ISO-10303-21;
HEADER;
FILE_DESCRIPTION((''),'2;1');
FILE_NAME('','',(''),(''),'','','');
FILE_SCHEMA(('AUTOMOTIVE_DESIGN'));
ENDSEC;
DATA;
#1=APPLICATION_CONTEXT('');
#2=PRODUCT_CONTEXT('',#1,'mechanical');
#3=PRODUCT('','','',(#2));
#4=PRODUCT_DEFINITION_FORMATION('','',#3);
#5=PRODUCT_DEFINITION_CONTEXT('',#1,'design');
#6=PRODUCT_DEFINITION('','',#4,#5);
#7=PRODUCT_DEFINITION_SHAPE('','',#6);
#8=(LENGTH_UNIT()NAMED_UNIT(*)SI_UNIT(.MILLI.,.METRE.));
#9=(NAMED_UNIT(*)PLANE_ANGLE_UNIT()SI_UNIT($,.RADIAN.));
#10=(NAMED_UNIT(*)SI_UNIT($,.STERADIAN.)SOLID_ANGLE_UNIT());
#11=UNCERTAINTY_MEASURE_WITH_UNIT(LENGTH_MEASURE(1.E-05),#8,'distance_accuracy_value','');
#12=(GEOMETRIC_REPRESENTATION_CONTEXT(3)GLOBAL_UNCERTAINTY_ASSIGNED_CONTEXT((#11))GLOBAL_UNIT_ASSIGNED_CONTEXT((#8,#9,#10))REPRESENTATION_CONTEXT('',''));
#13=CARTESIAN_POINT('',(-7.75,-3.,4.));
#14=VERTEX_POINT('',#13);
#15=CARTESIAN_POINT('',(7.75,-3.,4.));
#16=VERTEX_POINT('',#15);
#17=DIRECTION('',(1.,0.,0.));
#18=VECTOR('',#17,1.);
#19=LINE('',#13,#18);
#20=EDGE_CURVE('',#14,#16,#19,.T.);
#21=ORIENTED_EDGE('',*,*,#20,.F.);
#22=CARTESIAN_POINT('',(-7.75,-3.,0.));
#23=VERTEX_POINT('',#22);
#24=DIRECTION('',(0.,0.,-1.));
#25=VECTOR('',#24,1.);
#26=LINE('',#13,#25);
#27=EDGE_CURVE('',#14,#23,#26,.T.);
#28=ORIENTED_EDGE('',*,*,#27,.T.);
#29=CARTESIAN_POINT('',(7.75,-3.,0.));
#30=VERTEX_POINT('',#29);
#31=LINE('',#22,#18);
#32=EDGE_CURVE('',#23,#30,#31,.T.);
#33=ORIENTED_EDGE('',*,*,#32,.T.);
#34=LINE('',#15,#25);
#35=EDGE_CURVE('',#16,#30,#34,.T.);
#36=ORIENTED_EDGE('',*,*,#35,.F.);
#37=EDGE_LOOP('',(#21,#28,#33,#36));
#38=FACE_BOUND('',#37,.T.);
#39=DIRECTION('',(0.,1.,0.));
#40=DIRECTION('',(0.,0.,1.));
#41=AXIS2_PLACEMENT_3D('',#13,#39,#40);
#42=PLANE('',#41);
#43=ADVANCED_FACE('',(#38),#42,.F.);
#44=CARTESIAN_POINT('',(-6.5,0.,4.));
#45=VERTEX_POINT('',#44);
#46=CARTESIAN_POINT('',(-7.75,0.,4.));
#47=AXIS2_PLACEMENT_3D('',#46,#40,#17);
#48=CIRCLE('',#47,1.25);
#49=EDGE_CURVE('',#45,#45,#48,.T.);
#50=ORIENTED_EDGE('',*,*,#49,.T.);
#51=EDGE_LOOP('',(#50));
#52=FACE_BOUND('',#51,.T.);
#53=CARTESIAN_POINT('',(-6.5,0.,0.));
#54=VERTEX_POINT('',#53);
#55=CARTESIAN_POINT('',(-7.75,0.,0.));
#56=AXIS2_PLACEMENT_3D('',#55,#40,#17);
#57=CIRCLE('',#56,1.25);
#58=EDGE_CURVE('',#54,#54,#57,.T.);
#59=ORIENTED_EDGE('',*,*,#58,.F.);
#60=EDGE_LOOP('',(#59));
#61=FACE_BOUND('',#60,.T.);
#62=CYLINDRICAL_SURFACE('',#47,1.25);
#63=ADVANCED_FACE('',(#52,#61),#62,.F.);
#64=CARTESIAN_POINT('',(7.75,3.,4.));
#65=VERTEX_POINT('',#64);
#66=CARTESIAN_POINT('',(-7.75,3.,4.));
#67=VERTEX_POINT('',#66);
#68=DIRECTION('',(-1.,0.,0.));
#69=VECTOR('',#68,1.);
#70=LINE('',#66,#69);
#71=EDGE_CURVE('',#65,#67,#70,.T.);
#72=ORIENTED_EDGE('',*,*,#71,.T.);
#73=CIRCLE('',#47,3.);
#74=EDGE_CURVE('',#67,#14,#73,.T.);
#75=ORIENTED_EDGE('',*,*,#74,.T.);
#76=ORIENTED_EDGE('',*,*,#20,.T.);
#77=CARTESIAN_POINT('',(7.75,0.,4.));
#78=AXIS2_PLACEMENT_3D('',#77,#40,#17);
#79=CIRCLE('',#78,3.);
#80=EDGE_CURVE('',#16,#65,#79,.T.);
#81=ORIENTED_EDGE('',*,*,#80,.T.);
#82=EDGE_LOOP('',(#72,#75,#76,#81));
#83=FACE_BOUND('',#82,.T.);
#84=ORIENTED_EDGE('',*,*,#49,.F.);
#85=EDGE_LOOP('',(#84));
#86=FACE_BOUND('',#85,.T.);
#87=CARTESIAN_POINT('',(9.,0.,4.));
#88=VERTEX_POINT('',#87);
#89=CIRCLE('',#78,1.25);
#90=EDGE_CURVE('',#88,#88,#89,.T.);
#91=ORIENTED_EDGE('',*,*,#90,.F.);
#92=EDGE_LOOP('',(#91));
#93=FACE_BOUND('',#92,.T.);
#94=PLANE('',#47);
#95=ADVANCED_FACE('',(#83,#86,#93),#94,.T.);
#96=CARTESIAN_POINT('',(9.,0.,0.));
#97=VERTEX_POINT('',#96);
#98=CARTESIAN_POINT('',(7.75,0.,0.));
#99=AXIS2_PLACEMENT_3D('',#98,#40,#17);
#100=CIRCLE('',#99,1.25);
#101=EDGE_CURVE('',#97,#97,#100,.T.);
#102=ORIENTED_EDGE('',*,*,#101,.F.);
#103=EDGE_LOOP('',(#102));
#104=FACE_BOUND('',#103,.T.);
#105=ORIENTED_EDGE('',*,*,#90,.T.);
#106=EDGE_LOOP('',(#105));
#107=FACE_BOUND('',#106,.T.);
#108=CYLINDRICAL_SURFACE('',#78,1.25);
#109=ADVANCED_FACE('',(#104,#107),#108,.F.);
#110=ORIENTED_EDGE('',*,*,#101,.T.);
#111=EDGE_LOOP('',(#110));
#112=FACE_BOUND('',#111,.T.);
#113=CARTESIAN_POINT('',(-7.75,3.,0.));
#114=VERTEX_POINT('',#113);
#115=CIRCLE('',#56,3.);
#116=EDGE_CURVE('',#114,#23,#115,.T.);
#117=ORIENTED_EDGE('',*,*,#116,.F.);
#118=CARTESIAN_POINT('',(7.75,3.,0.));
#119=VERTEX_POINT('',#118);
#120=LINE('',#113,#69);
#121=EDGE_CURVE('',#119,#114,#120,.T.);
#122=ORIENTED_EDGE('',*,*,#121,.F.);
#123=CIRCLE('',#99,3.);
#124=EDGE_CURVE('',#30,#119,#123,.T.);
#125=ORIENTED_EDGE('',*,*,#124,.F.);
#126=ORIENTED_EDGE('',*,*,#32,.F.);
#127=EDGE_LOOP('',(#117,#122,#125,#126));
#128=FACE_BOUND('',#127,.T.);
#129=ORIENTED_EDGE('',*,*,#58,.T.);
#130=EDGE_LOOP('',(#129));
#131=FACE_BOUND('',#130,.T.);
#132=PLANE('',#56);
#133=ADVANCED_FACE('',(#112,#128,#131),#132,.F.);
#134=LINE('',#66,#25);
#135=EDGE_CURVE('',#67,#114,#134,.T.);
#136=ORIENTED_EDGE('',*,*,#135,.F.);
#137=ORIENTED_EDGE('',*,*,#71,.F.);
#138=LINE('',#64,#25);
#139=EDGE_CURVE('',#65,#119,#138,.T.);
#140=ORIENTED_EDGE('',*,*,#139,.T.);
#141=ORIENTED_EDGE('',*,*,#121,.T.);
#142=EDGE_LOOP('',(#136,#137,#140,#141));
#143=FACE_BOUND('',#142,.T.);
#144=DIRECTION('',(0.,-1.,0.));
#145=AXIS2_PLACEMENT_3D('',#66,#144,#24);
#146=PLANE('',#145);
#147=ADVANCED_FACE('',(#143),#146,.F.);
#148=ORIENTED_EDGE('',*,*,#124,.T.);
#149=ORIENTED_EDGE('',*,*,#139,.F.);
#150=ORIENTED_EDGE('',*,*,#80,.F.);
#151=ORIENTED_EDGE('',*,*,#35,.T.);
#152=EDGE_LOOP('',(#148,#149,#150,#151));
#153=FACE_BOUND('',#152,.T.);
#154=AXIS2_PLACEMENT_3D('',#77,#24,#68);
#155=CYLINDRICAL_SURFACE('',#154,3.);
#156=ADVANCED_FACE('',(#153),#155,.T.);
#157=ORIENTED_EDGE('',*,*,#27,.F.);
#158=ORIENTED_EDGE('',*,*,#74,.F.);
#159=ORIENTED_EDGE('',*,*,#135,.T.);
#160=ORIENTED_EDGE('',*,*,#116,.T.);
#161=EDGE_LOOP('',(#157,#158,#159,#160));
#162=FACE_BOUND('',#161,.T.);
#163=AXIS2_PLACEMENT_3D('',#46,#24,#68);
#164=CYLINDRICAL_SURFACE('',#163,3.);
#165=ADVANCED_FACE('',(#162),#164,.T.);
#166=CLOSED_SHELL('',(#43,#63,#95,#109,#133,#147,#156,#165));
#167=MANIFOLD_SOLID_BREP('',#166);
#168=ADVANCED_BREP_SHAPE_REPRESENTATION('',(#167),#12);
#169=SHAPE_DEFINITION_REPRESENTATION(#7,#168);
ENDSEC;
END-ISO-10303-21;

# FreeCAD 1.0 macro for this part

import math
import FreeCAD as App
import Part
import Sketcher

doc = App.newDocument("Part")
params = doc.addObject("Spreadsheet::Sheet", "Params")
for row, (alias, value) in enumerate([
    ("sketch1_radius", "3 mm"),
    ("sketch1_width", "15.5 mm"),
    ("pad1_length", "4 mm"),
    ("sketch2_diameter", "2.5 mm"),
    ("hole_diameter", "2.5 mm"),
], start=1):
    params.set(f"A{row}", alias)
    params.set(f"B{row}", "=" + value)
    params.setAlias(f"B{row}", alias)

body = doc.addObject("PartDesign::Body", "Body")

# Sketch on XY plane
sketch1 = doc.addObject("Sketcher::SketchObject", "Sketch")
body.addObject(sketch1)
sketch1.AttachmentSupport = (doc.XY_Plane, [""])
sketch1.MapMode = "FlatFace"
sketch1.addGeometry(Part.LineSegment(App.Vector(7.8, 3, 0), App.Vector(-7.8, 3, 0)), False)
sketch1.addGeometry(Part.ArcOfCircle(Part.Circle(App.Vector(-7.8, 0, 0), App.Vector(0, 0, 1), 3), math.radians(90), math.radians(270)), False)
sketch1.addGeometry(Part.LineSegment(App.Vector(-7.8, -3, 0), App.Vector(7.8, -3, 0)), False)
sketch1.addGeometry(Part.ArcOfCircle(Part.Circle(App.Vector(7.8, 0, 0), App.Vector(0, 0, 1), 3), math.radians(-90), math.radians(90)), False)
sketch1.addConstraint(Sketcher.Constraint("Tangent", 0, 2, 1, 1))
sketch1.addConstraint(Sketcher.Constraint("Tangent", 1, 2, 2, 1))
sketch1.addConstraint(Sketcher.Constraint("Tangent", 2, 2, 3, 1))
sketch1.addConstraint(Sketcher.Constraint("Tangent", 3, 2, 0, 1))
sketch1.addConstraint(Sketcher.Constraint("Horizontal", 0))
sketch1.addConstraint(Sketcher.Constraint("Horizontal", 2))
sketch1.addConstraint(Sketcher.Constraint("Symmetric", 1, 3, 3, 3, -1, 1))
sketch1.addConstraint(Sketcher.Constraint("Radius", 1, 3.0))
sketch1.addConstraint(Sketcher.Constraint("DistanceX", 0, 2, 0, 1, 15.5))
sketch1.setExpression("Constraints[7]", "Params.sketch1_radius")
sketch1.setExpression("Constraints[8]", "Params.sketch1_width")
pad1 = doc.addObject("PartDesign::Pad", "Pad")
body.addObject(pad1)
pad1.Profile = sketch1
pad1.setExpression("Length", "Params.pad1_length")

# Sketch on XY plane
sketch2 = doc.addObject("Sketcher::SketchObject", "Sketch001")
body.addObject(sketch2)
sketch2.AttachmentSupport = (doc.XY_Plane, [""])
sketch2.MapMode = "FlatFace"
sketch2.AttachmentOffset = App.Placement(App.Vector(0, 0, 4), App.Rotation())
sketch2.addGeometry(Part.Circle(App.Vector(7.8, 0, 0), App.Vector(0, 0, 1), 1.2), False)
sketch2.addGeometry(Part.Circle(App.Vector(-7.8, 0, 0), App.Vector(0, 0, 1), 1.2), False)
sketch2.addConstraint(Sketcher.Constraint("Equal", 0, 1))
sketch2.addConstraint(Sketcher.Constraint("Symmetric", 0, 3, 1, 3, -1, 1))
sketch2.addConstraint(Sketcher.Constraint("PointOnObject", 0, 3, -1))
sketch2.addConstraint(Sketcher.Constraint("Diameter", 0, 2.5))
sketch2.addConstraint(Sketcher.Constraint("DistanceX", 1, 3, 0, 3, 15.5))
sketch2.setExpression("Constraints[3]", "Params.sketch2_diameter")
doc.recompute()
hole = doc.addObject("PartDesign::Hole", "Hole")
body.addObject(hole)
hole.Profile = sketch2
hole.ThreadType = "None"
hole.setExpression("Diameter", "Params.hole_diameter")
hole.DepthType = "ThroughAll"

doc.recompute()
